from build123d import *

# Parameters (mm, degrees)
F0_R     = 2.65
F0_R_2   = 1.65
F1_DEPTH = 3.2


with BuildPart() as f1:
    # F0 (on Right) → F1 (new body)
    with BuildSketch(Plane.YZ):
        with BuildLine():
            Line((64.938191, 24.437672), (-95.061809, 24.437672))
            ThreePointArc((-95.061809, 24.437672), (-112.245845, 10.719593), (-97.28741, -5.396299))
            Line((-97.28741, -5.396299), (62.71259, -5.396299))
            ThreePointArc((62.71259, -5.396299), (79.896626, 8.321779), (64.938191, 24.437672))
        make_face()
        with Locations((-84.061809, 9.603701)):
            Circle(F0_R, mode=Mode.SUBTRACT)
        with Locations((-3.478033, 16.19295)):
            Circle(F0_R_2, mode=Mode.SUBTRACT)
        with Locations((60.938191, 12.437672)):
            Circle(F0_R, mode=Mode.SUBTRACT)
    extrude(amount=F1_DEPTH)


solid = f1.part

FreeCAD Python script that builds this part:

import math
import FreeCAD as App
import Part
import Sketcher

doc = App.newDocument("Part")
params = doc.addObject("Spreadsheet::Sheet", "Params")
for row, (alias, value) in enumerate([
    ("sketch1_radius", "15 mm"),
    ("sketch1_diameter", "5.3 mm"),
    ("sketch1_diameter2", "3.3 mm"),
    ("sketch1_width", "160 mm"),
    ("pad1_length", "3.2 mm"),
], start=1):
    params.set(f"A{row}", alias)
    params.set(f"B{row}", "=" + value)
    params.setAlias(f"B{row}", alias)

body = doc.addObject("PartDesign::Body", "Body")

# Sketch on YZ plane
sketch1 = body.newObject("Sketcher::SketchObject", "Sketch")
sketch1.AttachmentSupport = (doc.getObject("YZ_Plane"), [""])
sketch1.MapMode = "FlatFace"
sketch1.addGeometry([
    Part.LineSegment(App.Vector(64.938191, 24.437672, 0), App.Vector(-95.061809, 24.437672, 0)),  # 0
    Part.ArcOfCircle(Part.Circle(App.Vector(-97.28741, 9.603701, 0), App.Vector(0, 0, 1), 15), math.radians(81.467326), math.radians(269.999999)),  # 1
    Part.LineSegment(App.Vector(-97.28741, -5.396299, 0), App.Vector(62.71259, -5.396299, 0)),  # 2
    Part.ArcOfCircle(Part.Circle(App.Vector(64.938191, 9.437672, 0), App.Vector(0, 0, 1), 15), math.radians(-98.532674), math.radians(90)),  # 3
    Part.Circle(App.Vector(-84.061809, 9.603701, 0), App.Vector(0, 0, 1), 2.65),  # 4
    Part.Circle(App.Vector(60.938191, 12.437672, 0), App.Vector(0, 0, 1), 2.65),  # 5
    Part.Circle(App.Vector(-3.478033, 16.19295, 0), App.Vector(0, 0, 1), 1.65),  # 6
], False)
sketch1.addConstraint([
    Sketcher.Constraint("Coincident", 0, 2, 1, 1),
    Sketcher.Constraint("Tangent", 1, 2, 2, 1),
    Sketcher.Constraint("Coincident", 2, 2, 3, 1),
    Sketcher.Constraint("Tangent", 3, 2, 0, 1),
    Sketcher.Constraint("Horizontal", 0),
    Sketcher.Constraint("Horizontal", 2),
    Sketcher.Constraint("Equal", 1, 3),
    Sketcher.Constraint("Equal", 4, 5),
    Sketcher.Constraint("Horizontal", 1, 3, 4, 3),
    Sketcher.Constraint("Radius", 1, 15.0),
    Sketcher.Constraint("Diameter", 4, 5.3),
    Sketcher.Constraint("Diameter", 6, 3.3),
    Sketcher.Constraint("DistanceX", 0, 2, 0, 1, 160.0),
    Sketcher.Constraint("DistanceX", 4, 3, 3, 3, 149.0),
    Sketcher.Constraint("DistanceX", 5, 3, 3, 3, 4.0),
    Sketcher.Constraint("DistanceY", 3, 3, 5, 3, 3.0),
    Sketcher.Constraint("DistanceY", -1, 1, 1, 3, 9.603701),
    Sketcher.Constraint("DistanceX", 1, 3, 3, 3, 162.225601),
    Sketcher.Constraint("DistanceX", 1, 3, -1, 1, 97.28741),
    Sketcher.Constraint("DistanceY", -1, 1, 6, 3, 16.19295),
    Sketcher.Constraint("DistanceX", 6, 3, -1, 1, 3.478033),
])
sketch1.setExpression("Constraints[9]", "Params.sketch1_radius")
sketch1.setExpression("Constraints[10]", "Params.sketch1_diameter")
sketch1.setExpression("Constraints[11]", "Params.sketch1_diameter2")
sketch1.setExpression("Constraints[12]", "Params.sketch1_width")
pad1 = body.newObject("PartDesign::Pad", "Pad")
pad1.Profile = sketch1
pad1.setExpression("Length", "Params.pad1_length")

doc.recompute()
